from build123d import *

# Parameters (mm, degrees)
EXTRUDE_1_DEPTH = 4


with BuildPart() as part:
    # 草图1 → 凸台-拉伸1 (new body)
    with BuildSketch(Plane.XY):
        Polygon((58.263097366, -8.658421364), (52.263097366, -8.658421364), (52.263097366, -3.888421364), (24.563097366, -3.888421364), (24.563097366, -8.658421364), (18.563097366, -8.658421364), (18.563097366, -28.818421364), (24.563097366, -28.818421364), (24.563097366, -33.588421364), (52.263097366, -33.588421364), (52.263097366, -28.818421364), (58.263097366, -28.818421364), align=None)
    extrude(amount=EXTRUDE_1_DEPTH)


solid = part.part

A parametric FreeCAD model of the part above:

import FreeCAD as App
import Part
import Sketcher

V = App.Vector
Q = App.Units.Quantity


def add_polygon(sketch, points):
    """Adds a closed chain of lines whose ends are joined by coincident constraints."""
    first, n = sketch.GeometryCount, len(points)
    for a, b in zip(points, points[1:] + points[:1]):
        sketch.addGeometry(Part.LineSegment(App.Vector(*a, 0), App.Vector(*b, 0)), False)
    for i in range(n):
        sketch.addConstraint(Sketcher.Constraint("Coincident", first + i, 2, first + (i + 1) % n, 1))

doc = App.newDocument("Part")
body = doc.addObject("PartDesign::Body", "Body")

# Sketch on XY plane
sketch1 = body.newObject("Sketcher::SketchObject", "Sketch")
sketch1.AttachmentSupport = (doc.getObject("XY_Plane"), [""])
sketch1.MapMode = "FlatFace"
add_polygon(sketch1, [(58.3, -8.7), (52.3, -8.7), (52.3, -3.9), (24.6, -3.9), (24.6, -8.7), (18.6, -8.7), (18.6, -28.8), (24.6, -28.8), (24.6, -33.6), (52.3, -33.6), (52.3, -28.8), (58.3, -28.8)])  # lines 0-11
sketch1.addConstraint([
    Sketcher.Constraint("Horizontal", 0),
    Sketcher.Constraint("Vertical", 1),
    Sketcher.Constraint("Horizontal", 2),
    Sketcher.Constraint("Vertical", 3),
    Sketcher.Constraint("Horizontal", 4),
    Sketcher.Constraint("Vertical", 5),
    Sketcher.Constraint("Horizontal", 6),
    Sketcher.Constraint("Vertical", 7),
    Sketcher.Constraint("Horizontal", 8),
    Sketcher.Constraint("Vertical", 9),
    Sketcher.Constraint("Horizontal", 10),
    Sketcher.Constraint("Vertical", 11),
    Sketcher.Constraint("Horizontal", 0, 2, 3, 2),
    Sketcher.Constraint("Horizontal", 6, 2, 9, 2),
    Sketcher.Constraint("Vertical", 3, 2, 6, 2),
    Sketcher.Constraint("Vertical", 1, 2, 8, 2),
    Sketcher.Constraint("Equal", 0, 4),
    Sketcher.Constraint("Equal", 3, 7),
    Sketcher.Constraint("DistanceX", 0, 2, 0, 1, Q("6 mm")),
    Sketcher.Constraint("DistanceX", 2, 2, 2, 1, Q("27.7 mm")),
    Sketcher.Constraint("DistanceY", 1, 1, 1, 2, Q("4.77 mm")),
    Sketcher.Constraint("DistanceY", 5, 2, 5, 1, Q("20.16 mm")),
    Sketcher.Constraint("DistanceY", 0, 2, -1, 1, Q("8.658421 mm")),
    Sketcher.Constraint("DistanceX", -1, 1, 0, 2, Q("52.263097 mm")),
])
pad1 = body.newObject("PartDesign::Pad", "Pad")
pad1.Profile = sketch1
pad1.Length = 4

doc.recompute()
